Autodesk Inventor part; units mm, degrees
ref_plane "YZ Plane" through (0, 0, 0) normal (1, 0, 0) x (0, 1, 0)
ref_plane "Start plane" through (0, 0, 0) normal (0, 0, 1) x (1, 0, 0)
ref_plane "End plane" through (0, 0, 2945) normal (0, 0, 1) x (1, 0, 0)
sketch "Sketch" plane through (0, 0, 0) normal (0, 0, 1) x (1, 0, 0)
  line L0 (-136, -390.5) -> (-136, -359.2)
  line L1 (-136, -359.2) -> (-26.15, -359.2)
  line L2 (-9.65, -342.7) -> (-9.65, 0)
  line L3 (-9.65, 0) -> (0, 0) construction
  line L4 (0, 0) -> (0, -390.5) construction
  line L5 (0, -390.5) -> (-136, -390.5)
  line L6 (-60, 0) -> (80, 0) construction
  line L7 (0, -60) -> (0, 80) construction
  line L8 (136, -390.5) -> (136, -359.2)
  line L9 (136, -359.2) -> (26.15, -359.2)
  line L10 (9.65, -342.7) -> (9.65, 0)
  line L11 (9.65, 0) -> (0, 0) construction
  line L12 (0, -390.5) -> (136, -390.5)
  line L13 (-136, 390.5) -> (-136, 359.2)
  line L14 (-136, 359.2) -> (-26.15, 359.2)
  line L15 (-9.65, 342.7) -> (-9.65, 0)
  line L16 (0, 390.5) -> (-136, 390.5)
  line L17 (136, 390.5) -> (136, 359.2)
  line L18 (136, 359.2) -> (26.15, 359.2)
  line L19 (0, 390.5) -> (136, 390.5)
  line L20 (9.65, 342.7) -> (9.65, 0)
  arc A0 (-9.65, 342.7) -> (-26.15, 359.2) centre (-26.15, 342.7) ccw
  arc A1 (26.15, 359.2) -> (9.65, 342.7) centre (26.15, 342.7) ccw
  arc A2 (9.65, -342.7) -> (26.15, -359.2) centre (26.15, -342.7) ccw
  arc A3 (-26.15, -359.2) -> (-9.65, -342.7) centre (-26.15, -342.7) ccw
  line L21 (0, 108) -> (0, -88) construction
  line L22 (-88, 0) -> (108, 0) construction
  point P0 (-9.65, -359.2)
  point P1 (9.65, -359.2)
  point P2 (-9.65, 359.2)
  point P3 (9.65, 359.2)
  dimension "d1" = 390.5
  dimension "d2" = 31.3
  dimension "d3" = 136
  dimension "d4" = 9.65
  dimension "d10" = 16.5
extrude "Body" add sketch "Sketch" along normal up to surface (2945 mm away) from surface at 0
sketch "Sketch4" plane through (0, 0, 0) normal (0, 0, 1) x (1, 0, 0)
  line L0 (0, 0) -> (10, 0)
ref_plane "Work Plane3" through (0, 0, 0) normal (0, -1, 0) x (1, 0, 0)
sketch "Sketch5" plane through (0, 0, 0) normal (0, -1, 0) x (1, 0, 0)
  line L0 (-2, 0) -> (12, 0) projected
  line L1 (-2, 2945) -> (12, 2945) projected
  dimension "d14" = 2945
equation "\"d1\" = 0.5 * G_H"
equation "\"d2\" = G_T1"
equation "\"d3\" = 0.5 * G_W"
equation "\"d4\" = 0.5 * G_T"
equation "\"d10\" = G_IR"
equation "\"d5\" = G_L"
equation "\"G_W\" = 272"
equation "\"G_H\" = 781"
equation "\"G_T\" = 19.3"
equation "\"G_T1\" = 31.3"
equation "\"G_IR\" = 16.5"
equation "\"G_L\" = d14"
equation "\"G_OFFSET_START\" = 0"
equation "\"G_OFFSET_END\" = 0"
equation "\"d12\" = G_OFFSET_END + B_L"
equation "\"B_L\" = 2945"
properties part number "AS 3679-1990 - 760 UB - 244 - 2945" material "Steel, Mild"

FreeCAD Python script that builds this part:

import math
import FreeCAD as App
import Part
import Sketcher
from FreeCAD import Vector
Q = App.Units.Quantity

doc = App.newDocument("Part")
body = doc.addObject("PartDesign::Body", "Body")

# Sketch on XY plane
sketch1 = body.newObject("Sketcher::SketchObject", "Sketch")
sketch1.AttachmentSupport = (doc.getObject("XY_Plane"), [""])
sketch1.MapMode = "FlatFace"
sketch1.addGeometry([
    Part.LineSegment(Vector(-136, -359, 0), Vector(-136, -390, 0)),  # 0
    Part.LineSegment(Vector(-136, -390, 0), Vector(136, -390, 0)),  # 1
    Part.LineSegment(Vector(136, -390, 0), Vector(136, -359, 0)),  # 2
    Part.LineSegment(Vector(136, -359, 0), Vector(26, -359, 0)),  # 3
    Part.ArcOfCircle(Part.Circle(Vector(26, -343, 0), Vector(0, 0, 1), 16), math.radians(180), math.radians(270)),  # 4
    Part.LineSegment(Vector(10, -343, 0), Vector(10, 343, 0)),  # 5
    Part.ArcOfCircle(Part.Circle(Vector(26, 343, 0), Vector(0, 0, 1), 16), math.radians(90), math.radians(180)),  # 6
    Part.LineSegment(Vector(26, 359, 0), Vector(136, 359, 0)),  # 7
    Part.LineSegment(Vector(136, 359, 0), Vector(136, 390, 0)),  # 8
    Part.LineSegment(Vector(136, 390, 0), Vector(-136, 390, 0)),  # 9
    Part.LineSegment(Vector(-136, 390, 0), Vector(-136, 359, 0)),  # 10
    Part.LineSegment(Vector(-136, 359, 0), Vector(-26, 359, 0)),  # 11
    Part.ArcOfCircle(Part.Circle(Vector(-26, 343, 0), Vector(0, 0, 1), 16), math.radians(0), math.radians(90)),  # 12
    Part.LineSegment(Vector(-10, 343, 0), Vector(-10, -343, 0)),  # 13
    Part.ArcOfCircle(Part.Circle(Vector(-26, -343, 0), Vector(0, 0, 1), 16), math.radians(-90), math.radians(0)),  # 14
    Part.LineSegment(Vector(-26, -359, 0), Vector(-136, -359, 0)),  # 15
], False)
sketch1.addConstraint([
    Sketcher.Constraint("Coincident", 0, 2, 1, 1),
    Sketcher.Constraint("Coincident", 1, 2, 2, 1),
    Sketcher.Constraint("Coincident", 2, 2, 3, 1),
    Sketcher.Constraint("Tangent", 3, 2, 4, 2),
    Sketcher.Constraint("Tangent", 4, 1, 5, 1),
    Sketcher.Constraint("Tangent", 5, 2, 6, 2),
    Sketcher.Constraint("Tangent", 6, 1, 7, 1),
    Sketcher.Constraint("Coincident", 7, 2, 8, 1),
    Sketcher.Constraint("Coincident", 8, 2, 9, 1),
    Sketcher.Constraint("Coincident", 9, 2, 10, 1),
    Sketcher.Constraint("Coincident", 10, 2, 11, 1),
    Sketcher.Constraint("Tangent", 11, 2, 12, 2),
    Sketcher.Constraint("Tangent", 12, 1, 13, 1),
    Sketcher.Constraint("Tangent", 13, 2, 14, 2),
    Sketcher.Constraint("Tangent", 14, 1, 15, 1),
    Sketcher.Constraint("Coincident", 15, 2, 0, 1),
    Sketcher.Constraint("Vertical", 0),
    Sketcher.Constraint("Horizontal", 1),
    Sketcher.Constraint("Vertical", 2),
    Sketcher.Constraint("Horizontal", 3),
    Sketcher.Constraint("Vertical", 5),
    Sketcher.Constraint("Horizontal", 7),
    Sketcher.Constraint("Vertical", 8),
    Sketcher.Constraint("Horizontal", 9),
    Sketcher.Constraint("Vertical", 10),
    Sketcher.Constraint("Horizontal", 11),
    Sketcher.Constraint("Vertical", 13),
    Sketcher.Constraint("Horizontal", 15),
    Sketcher.Constraint("Equal", 4, 6),
    Sketcher.Constraint("Equal", 6, 12),
    Sketcher.Constraint("Equal", 12, 14),
    Sketcher.Constraint("Symmetric", 4, 3, 12, 3, -1, 1),
    Sketcher.Constraint("Symmetric", 0, 2, 8, 2, -1, 1),
    Sketcher.Constraint("Symmetric", 7, 2, 10, 2, -2),
    Sketcher.Constraint("Symmetric", 2, 2, 15, 2, -2),
    Sketcher.Constraint("Radius", 4, Q("16.5 mm")),
    Sketcher.Constraint("DistanceY", 0, 2, 0, 1, Q("31.3 mm")),
    Sketcher.Constraint("DistanceX", 0, 2, -1, 1, Q("136 mm")),
    Sketcher.Constraint("DistanceY", 0, 2, -1, 1, Q("390.5 mm")),
    Sketcher.Constraint("DistanceX", -1, 1, 4, 1, Q("9.65 mm")),
])
pad1 = body.newObject("PartDesign::Pad", "Pad")
pad1.Profile = sketch1
pad1.Length = 2945

doc.recompute()
